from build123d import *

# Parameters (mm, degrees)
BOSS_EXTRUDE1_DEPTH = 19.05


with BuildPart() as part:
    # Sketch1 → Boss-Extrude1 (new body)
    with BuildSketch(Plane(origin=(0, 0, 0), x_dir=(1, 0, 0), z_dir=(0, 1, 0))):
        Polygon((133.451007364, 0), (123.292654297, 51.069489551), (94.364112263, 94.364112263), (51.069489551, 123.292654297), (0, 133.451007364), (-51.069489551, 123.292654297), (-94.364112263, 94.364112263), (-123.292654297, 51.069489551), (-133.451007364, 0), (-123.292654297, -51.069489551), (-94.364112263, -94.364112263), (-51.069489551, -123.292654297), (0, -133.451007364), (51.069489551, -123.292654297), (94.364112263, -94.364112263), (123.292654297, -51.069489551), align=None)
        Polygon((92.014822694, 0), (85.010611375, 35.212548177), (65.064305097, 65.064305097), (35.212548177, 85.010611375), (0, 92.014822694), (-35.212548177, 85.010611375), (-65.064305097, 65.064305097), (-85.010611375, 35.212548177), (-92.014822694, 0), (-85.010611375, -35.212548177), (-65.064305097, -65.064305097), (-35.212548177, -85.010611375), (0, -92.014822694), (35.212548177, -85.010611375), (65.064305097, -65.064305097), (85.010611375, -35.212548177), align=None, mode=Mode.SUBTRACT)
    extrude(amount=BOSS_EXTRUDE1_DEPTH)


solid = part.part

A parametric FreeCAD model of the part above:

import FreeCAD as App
import Part
import Sketcher

V = App.Vector
Q = App.Units.Quantity

doc = App.newDocument("Part")
body = doc.addObject("PartDesign::Body", "Body")

# Sketch on XZ plane
sketch1 = body.newObject("Sketcher::SketchObject", "Sketch")
sketch1.AttachmentSupport = (doc.getObject("XZ_Plane"), [""])
sketch1.MapMode = "FlatFace"
sketch1.addGeometry([
    Part.LineSegment(V(133, 0, 0), V(123, -51, 0)),  # 0
    Part.LineSegment(V(123, -51, 0), V(94, -94, 0)),  # 1
    Part.LineSegment(V(94, -94, 0), V(51, -123, 0)),  # 2
    Part.LineSegment(V(51, -123, 0), V(0, -133, 0)),  # 3
    Part.LineSegment(V(0, -133, 0), V(-51, -123, 0)),  # 4
    Part.LineSegment(V(-51, -123, 0), V(-94, -94, 0)),  # 5
    Part.LineSegment(V(-94, -94, 0), V(-123, -51, 0)),  # 6
    Part.LineSegment(V(-123, -51, 0), V(-133, 0, 0)),  # 7
    Part.LineSegment(V(-133, 0, 0), V(-123, 51, 0)),  # 8
    Part.LineSegment(V(-123, 51, 0), V(-94, 94, 0)),  # 9
    Part.LineSegment(V(-94, 94, 0), V(-51, 123, 0)),  # 10
    Part.LineSegment(V(-51, 123, 0), V(0, 133, 0)),  # 11
    Part.LineSegment(V(0, 133, 0), V(51, 123, 0)),  # 12
    Part.LineSegment(V(51, 123, 0), V(94, 94, 0)),  # 13
    Part.LineSegment(V(94, 94, 0), V(123, 51, 0)),  # 14
    Part.LineSegment(V(123, 51, 0), V(133, 0, 0)),  # 15
    Part.LineSegment(V(85, -35, 0), V(92, 0, 0)),  # 16
    Part.LineSegment(V(92, 0, 0), V(85, 35, 0)),  # 17
    Part.LineSegment(V(85, 35, 0), V(65, 65, 0)),  # 18
    Part.LineSegment(V(65, 65, 0), V(35, 85, 0)),  # 19
    Part.LineSegment(V(35, 85, 0), V(0, 92, 0)),  # 20
    Part.LineSegment(V(0, 92, 0), V(-35, 85, 0)),  # 21
    Part.LineSegment(V(-35, 85, 0), V(-65, 65, 0)),  # 22
    Part.LineSegment(V(-65, 65, 0), V(-85, 35, 0)),  # 23
    Part.LineSegment(V(-85, 35, 0), V(-92, 0, 0)),  # 24
    Part.LineSegment(V(-92, 0, 0), V(-85, -35, 0)),  # 25
    Part.LineSegment(V(-85, -35, 0), V(-65, -65, 0)),  # 26
    Part.LineSegment(V(-65, -65, 0), V(-35, -85, 0)),  # 27
    Part.LineSegment(V(-35, -85, 0), V(0, -92, 0)),  # 28
    Part.LineSegment(V(0, -92, 0), V(35, -85, 0)),  # 29
    Part.LineSegment(V(35, -85, 0), V(65, -65, 0)),  # 30
    Part.LineSegment(V(65, -65, 0), V(85, -35, 0)),  # 31
], False)
sketch1.addConstraint([
    Sketcher.Constraint("Coincident", 0, 2, 1, 1),
    Sketcher.Constraint("Coincident", 1, 2, 2, 1),
    Sketcher.Constraint("Coincident", 2, 2, 3, 1),
    Sketcher.Constraint("Coincident", 3, 2, 4, 1),
    Sketcher.Constraint("Coincident", 4, 2, 5, 1),
    Sketcher.Constraint("Coincident", 5, 2, 6, 1),
    Sketcher.Constraint("Coincident", 6, 2, 7, 1),
    Sketcher.Constraint("Coincident", 7, 2, 8, 1),
    Sketcher.Constraint("Coincident", 8, 2, 9, 1),
    Sketcher.Constraint("Coincident", 9, 2, 10, 1),
    Sketcher.Constraint("Coincident", 10, 2, 11, 1),
    Sketcher.Constraint("Coincident", 11, 2, 12, 1),
    Sketcher.Constraint("Coincident", 12, 2, 13, 1),
    Sketcher.Constraint("Coincident", 13, 2, 14, 1),
    Sketcher.Constraint("Coincident", 14, 2, 15, 1),
    Sketcher.Constraint("Coincident", 15, 2, 0, 1),
    Sketcher.Constraint("Coincident", 16, 2, 17, 1),
    Sketcher.Constraint("Coincident", 17, 2, 18, 1),
    Sketcher.Constraint("Coincident", 18, 2, 19, 1),
    Sketcher.Constraint("Coincident", 19, 2, 20, 1),
    Sketcher.Constraint("Coincident", 20, 2, 21, 1),
    Sketcher.Constraint("Coincident", 21, 2, 22, 1),
    Sketcher.Constraint("Coincident", 22, 2, 23, 1),
    Sketcher.Constraint("Coincident", 23, 2, 24, 1),
    Sketcher.Constraint("Coincident", 24, 2, 25, 1),
    Sketcher.Constraint("Coincident", 25, 2, 26, 1),
    Sketcher.Constraint("Coincident", 26, 2, 27, 1),
    Sketcher.Constraint("Coincident", 27, 2, 28, 1),
    Sketcher.Constraint("Coincident", 28, 2, 29, 1),
    Sketcher.Constraint("Coincident", 29, 2, 30, 1),
    Sketcher.Constraint("Coincident", 30, 2, 31, 1),
    Sketcher.Constraint("Coincident", 31, 2, 16, 1),
    Sketcher.Constraint("Symmetric", 0, 2, 8, 2, -1, 1),
    Sketcher.Constraint("Symmetric", 1, 2, 9, 2, -1, 1),
    Sketcher.Constraint("Symmetric", 2, 2, 10, 2, -1, 1),
    Sketcher.Constraint("Symmetric", 3, 2, 11, 2, -1, 1),
    Sketcher.Constraint("Symmetric", 4, 2, 12, 2, -1, 1),
    Sketcher.Constraint("Symmetric", 5, 2, 13, 2, -1, 1),
    Sketcher.Constraint("Symmetric", 6, 2, 14, 2, -1, 1),
    Sketcher.Constraint("Symmetric", 7, 2, 15, 2, -1, 1),
    Sketcher.Constraint("Symmetric", 16, 2, 24, 2, -1, 1),
    Sketcher.Constraint("Symmetric", 17, 2, 25, 2, -1, 1),
    Sketcher.Constraint("Symmetric", 18, 2, 26, 2, -1, 1),
    Sketcher.Constraint("Symmetric", 19, 2, 27, 2, -1, 1),
    Sketcher.Constraint("Symmetric", 20, 2, 28, 2, -1, 1),
    Sketcher.Constraint("Symmetric", 21, 2, 29, 2, -1, 1),
    Sketcher.Constraint("Symmetric", 22, 2, 30, 2, -1, 1),
    Sketcher.Constraint("Symmetric", 23, 2, 31, 2, -1, 1),
    Sketcher.Constraint("Symmetric", 2, 2, 4, 2, -2),
    Sketcher.Constraint("Symmetric", 1, 2, 5, 2, -2),
    Sketcher.Constraint("Symmetric", 0, 2, 6, 2, -2),
    Sketcher.Constraint("Symmetric", 19, 2, 21, 2, -2),
    Sketcher.Constraint("Symmetric", 18, 2, 22, 2, -2),
    Sketcher.Constraint("Symmetric", 17, 2, 23, 2, -2),
    Sketcher.Constraint("PointOnObject", 3, 2, -2),
    Sketcher.Constraint("PointOnObject", 7, 2, -1),
    Sketcher.Constraint("PointOnObject", 16, 2, -1),
    Sketcher.Constraint("PointOnObject", 20, 2, -2),
    Sketcher.Constraint("Perpendicular", 0, 4),
    Sketcher.Constraint("Perpendicular", 1, 5),
    Sketcher.Constraint("Perpendicular", 12, 16),
    Sketcher.Constraint("Parallel", 14, 18),
    Sketcher.Constraint("Parallel", 13, 19),
    Sketcher.Constraint("Perpendicular", 16, 20),
    Sketcher.Constraint("Equal", 0, 1),
    Sketcher.Constraint("Equal", 1, 2),
    Sketcher.Constraint("Equal", 2, 3),
    Sketcher.Constraint("Equal", 17, 18),
    Sketcher.Constraint("Equal", 18, 19),
    Sketcher.Constraint("Equal", 19, 20),
    Sketcher.Constraint("Distance", 0, Q("2.05 in")),
    Sketcher.Constraint("Angle", 0, Q("-101.25 deg")),
    Sketcher.Constraint("Angle", 1, Q("-123.75 deg")),
    Sketcher.Constraint("DistanceX", 17, 2, 13, 2, Q("9.353501 mm")),
])
pad1 = body.newObject("PartDesign::Pad", "Pad")
pad1.Profile = sketch1
pad1.Length = Q("0.75 in")
pad1.Reversed = True

doc.recompute()
